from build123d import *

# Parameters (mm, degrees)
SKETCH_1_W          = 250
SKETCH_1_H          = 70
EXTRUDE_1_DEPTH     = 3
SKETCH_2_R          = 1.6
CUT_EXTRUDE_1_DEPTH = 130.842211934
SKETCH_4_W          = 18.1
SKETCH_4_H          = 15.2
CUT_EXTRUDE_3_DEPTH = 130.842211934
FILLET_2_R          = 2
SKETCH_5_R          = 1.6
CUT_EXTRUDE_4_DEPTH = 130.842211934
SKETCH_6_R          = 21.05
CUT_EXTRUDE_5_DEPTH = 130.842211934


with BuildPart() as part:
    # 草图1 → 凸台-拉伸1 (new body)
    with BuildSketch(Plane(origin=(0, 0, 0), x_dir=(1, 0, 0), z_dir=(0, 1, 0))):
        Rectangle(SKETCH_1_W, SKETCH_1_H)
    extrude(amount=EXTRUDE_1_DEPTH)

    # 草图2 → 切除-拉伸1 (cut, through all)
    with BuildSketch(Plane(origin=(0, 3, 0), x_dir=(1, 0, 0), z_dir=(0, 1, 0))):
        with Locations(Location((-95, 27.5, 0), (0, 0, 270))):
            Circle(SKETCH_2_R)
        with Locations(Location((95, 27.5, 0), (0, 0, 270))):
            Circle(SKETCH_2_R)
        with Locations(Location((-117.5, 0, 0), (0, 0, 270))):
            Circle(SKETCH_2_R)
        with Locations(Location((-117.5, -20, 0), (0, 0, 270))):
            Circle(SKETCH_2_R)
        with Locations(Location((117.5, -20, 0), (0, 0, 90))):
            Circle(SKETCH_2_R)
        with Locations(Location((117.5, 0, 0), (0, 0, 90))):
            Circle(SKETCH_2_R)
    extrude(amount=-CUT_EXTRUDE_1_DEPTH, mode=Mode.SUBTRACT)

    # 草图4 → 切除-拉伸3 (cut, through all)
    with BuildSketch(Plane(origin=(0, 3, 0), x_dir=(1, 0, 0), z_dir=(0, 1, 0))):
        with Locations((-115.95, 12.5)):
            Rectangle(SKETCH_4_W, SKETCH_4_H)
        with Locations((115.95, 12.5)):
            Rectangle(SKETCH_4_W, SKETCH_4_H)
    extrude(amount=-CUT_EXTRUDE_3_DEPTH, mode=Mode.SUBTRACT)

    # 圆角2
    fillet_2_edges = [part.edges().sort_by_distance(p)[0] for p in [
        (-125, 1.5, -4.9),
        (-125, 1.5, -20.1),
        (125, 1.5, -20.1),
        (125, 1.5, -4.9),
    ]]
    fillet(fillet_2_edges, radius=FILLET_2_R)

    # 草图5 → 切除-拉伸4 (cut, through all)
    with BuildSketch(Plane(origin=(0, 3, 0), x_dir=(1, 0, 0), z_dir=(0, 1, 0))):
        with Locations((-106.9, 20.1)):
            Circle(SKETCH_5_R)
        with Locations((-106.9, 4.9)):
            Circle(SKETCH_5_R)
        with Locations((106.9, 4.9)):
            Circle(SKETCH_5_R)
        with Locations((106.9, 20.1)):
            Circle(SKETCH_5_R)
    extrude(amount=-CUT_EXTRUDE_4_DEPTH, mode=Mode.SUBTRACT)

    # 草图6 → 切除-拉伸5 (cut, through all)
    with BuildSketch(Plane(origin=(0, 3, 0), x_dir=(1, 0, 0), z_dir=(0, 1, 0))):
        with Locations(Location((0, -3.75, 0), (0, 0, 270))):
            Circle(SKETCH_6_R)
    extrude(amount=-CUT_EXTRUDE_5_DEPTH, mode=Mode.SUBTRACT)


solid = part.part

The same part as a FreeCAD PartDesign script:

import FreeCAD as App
import Part
import Sketcher

V = App.Vector


def edges_at(feature, points):
    """Names of the edges that pass closest to the given points."""
    edges = feature.Shape.Edges
    near = lambda p: min(range(len(edges)), key=lambda i: edges[i].distToShape(Part.Vertex(*p))[0])
    return sorted({f"Edge{near(p) + 1}" for p in points})


def add_polygon(sketch, points):
    """Adds a closed chain of lines whose ends are joined by coincident constraints."""
    first, n = sketch.GeometryCount, len(points)
    for a, b in zip(points, points[1:] + points[:1]):
        sketch.addGeometry(Part.LineSegment(App.Vector(*a, 0), App.Vector(*b, 0)), False)
    for i in range(n):
        sketch.addConstraint(Sketcher.Constraint("Coincident", first + i, 2, first + (i + 1) % n, 1))

doc = App.newDocument("Part")
body = doc.addObject("PartDesign::Body", "Body")

# Sketch on XZ plane
sketch1 = body.newObject("Sketcher::SketchObject", "Sketch")
sketch1.AttachmentSupport = (doc.getObject("XZ_Plane"), [""])
sketch1.MapMode = "FlatFace"
add_polygon(sketch1, [(-125, -35), (-125, 35), (125, 35), (125, -35)])  # lines 0-3
sketch1.addConstraint([
    Sketcher.Constraint("Vertical", 0),
    Sketcher.Constraint("Horizontal", 1),
    Sketcher.Constraint("Vertical", 2),
    Sketcher.Constraint("Horizontal", 3),
    Sketcher.Constraint("Symmetric", 0, 2, 2, 2, -1, 1),
    Sketcher.Constraint("DistanceX", 1, 1, 1, 2, 250.0),
    Sketcher.Constraint("DistanceY", 0, 1, 0, 2, 70.0),
])
pad1 = body.newObject("PartDesign::Pad", "Pad")
pad1.Profile = sketch1
pad1.Length = 3
pad1.Reversed = True

# Sketch on XZ plane
sketch2 = body.newObject("Sketcher::SketchObject", "Sketch001")
sketch2.AttachmentSupport = (doc.getObject("XZ_Plane"), [""])
sketch2.MapMode = "FlatFace"
sketch2.AttachmentOffset = App.Placement(V(0, 0, -3), App.Rotation())
sketch2.addGeometry([
    Part.Circle(V(-95, -27.5, 0), V(0, 0, 1), 1.6),  # 0
    Part.Circle(V(95, -27.5, 0), V(0, 0, 1), 1.6),  # 1
    Part.Circle(V(-117.5, 0, 0), V(0, 0, 1), 1.6),  # 2
    Part.Circle(V(-117.5, 20, 0), V(0, 0, 1), 1.6),  # 3
    Part.Circle(V(117.5, 20, 0), V(0, 0, 1), 1.6),  # 4
    Part.Circle(V(117.5, 0, 0), V(0, 0, 1), 1.6),  # 5
], False)
sketch2.addConstraint([
    Sketcher.Constraint("Equal", 0, 1),
    Sketcher.Constraint("Equal", 1, 2),
    Sketcher.Constraint("Equal", 2, 3),
    Sketcher.Constraint("Equal", 3, 4),
    Sketcher.Constraint("Equal", 4, 5),
    Sketcher.Constraint("Symmetric", 2, 3, 5, 3, -1, 1),
    Sketcher.Constraint("Symmetric", 0, 3, 1, 3, -2),
    Sketcher.Constraint("Symmetric", 3, 3, 4, 3, -2),
    Sketcher.Constraint("PointOnObject", 2, 3, -1),
    Sketcher.Constraint("Vertical", 2, 3, 3, 3),
    Sketcher.Constraint("Diameter", 0, 3.2),
    Sketcher.Constraint("DistanceX", 0, 3, -1, 1, 95.0),
    Sketcher.Constraint("DistanceY", -1, 1, 3, 3, 20.0),
    Sketcher.Constraint("DistanceX", 3, 3, 4, 3, 235.0),
    Sketcher.Constraint("DistanceY", 0, 3, -1, 1, 27.5),
])
pocket1 = body.newObject("PartDesign::Pocket", "Pocket")
pocket1.Profile = sketch2
pocket1.Type = "ThroughAll"
pocket1.Reversed = True

# Sketch on XZ plane
sketch3 = body.newObject("Sketcher::SketchObject", "Sketch002")
sketch3.AttachmentSupport = (doc.getObject("XZ_Plane"), [""])
sketch3.MapMode = "FlatFace"
sketch3.AttachmentOffset = App.Placement(V(0, 0, -3), App.Rotation())
add_polygon(sketch3, [(-125, -20), (-125, -5), (-107, -5), (-107, -20)])  # lines 0-3
add_polygon(sketch3, [(107, -20), (107, -5), (125, -5), (125, -20)])  # lines 4-7
sketch3.addConstraint([
    Sketcher.Constraint("Vertical", 0),
    Sketcher.Constraint("Horizontal", 1),
    Sketcher.Constraint("Vertical", 2),
    Sketcher.Constraint("Horizontal", 3),
    Sketcher.Constraint("Vertical", 4),
    Sketcher.Constraint("Horizontal", 5),
    Sketcher.Constraint("Vertical", 6),
    Sketcher.Constraint("Horizontal", 7),
    Sketcher.Constraint("Symmetric", 1, 2, 4, 2, -2),
    Sketcher.Constraint("Symmetric", 3, 2, 6, 2, -2),
    Sketcher.Constraint("DistanceX", 1, 1, 1, 2, 18.1),
    Sketcher.Constraint("DistanceY", 0, 1, 0, 2, 15.2),
    Sketcher.Constraint("DistanceX", 0, 2, -1, 1, 125.0),
    Sketcher.Constraint("DistanceY", 0, 2, -1, 1, 4.9),
])
pocket2 = body.newObject("PartDesign::Pocket", "Pocket001")
pocket2.Profile = sketch3
pocket2.Type = "ThroughAll"
pocket2.Reversed = True
doc.recompute()

fillet = body.newObject("PartDesign::Fillet", "Fillet")
fillet.Base = (pocket2, edges_at(pocket2, [
    (-125, 1.5, -4.9),
    (-125, 1.5, -20.1),
    (125, 1.5, -20.1),
    (125, 1.5, -4.9),
]))
fillet.Radius = 2

# Sketch on XZ plane
sketch4 = body.newObject("Sketcher::SketchObject", "Sketch003")
sketch4.AttachmentSupport = (doc.getObject("XZ_Plane"), [""])
sketch4.MapMode = "FlatFace"
sketch4.AttachmentOffset = App.Placement(V(0, 0, -3), App.Rotation())
sketch4.addGeometry([
    Part.Circle(V(-106.9, -20.1, 0), V(0, 0, 1), 1.6),
    Part.Circle(V(-106.9, -4.9, 0), V(0, 0, 1), 1.6),
    Part.Circle(V(106.9, -4.9, 0), V(0, 0, 1), 1.6),
    Part.Circle(V(106.9, -20.1, 0), V(0, 0, 1), 1.6),
], False)
sketch4.addConstraint([
    Sketcher.Constraint("Equal", 0, 1),
    Sketcher.Constraint("Equal", 1, 2),
    Sketcher.Constraint("Equal", 2, 3),
    Sketcher.Constraint("Symmetric", 1, 3, 2, 3, -2),
    Sketcher.Constraint("Symmetric", 0, 3, 3, 3, -2),
    Sketcher.Constraint("Vertical", 0, 3, 1, 3),
    Sketcher.Constraint("Diameter", 0, 3.2),
    Sketcher.Constraint("DistanceX", 0, 3, -1, 1, 106.9),
    Sketcher.Constraint("DistanceY", 0, 3, -1, 1, 20.1),
    Sketcher.Constraint("DistanceY", 1, 3, -1, 1, 4.9),
])
pocket3 = body.newObject("PartDesign::Pocket", "Pocket002")
pocket3.Profile = sketch4
pocket3.Type = "ThroughAll"
pocket3.Reversed = True

# Sketch on XZ plane
sketch5 = body.newObject("Sketcher::SketchObject", "Sketch004")
sketch5.AttachmentSupport = (doc.getObject("XZ_Plane"), [""])
sketch5.MapMode = "FlatFace"
sketch5.AttachmentOffset = App.Placement(V(0, 0, -3), App.Rotation())
sketch5.addGeometry(Part.Circle(V(0, 4, 0), V(0, 0, 1), 21), False)
sketch5.addConstraint([
    Sketcher.Constraint("PointOnObject", 0, 3, -2),
    Sketcher.Constraint("Diameter", 0, 42.1),
    Sketcher.Constraint("DistanceY", -1, 1, 0, 3, 3.75),
])
pocket4 = body.newObject("PartDesign::Pocket", "Pocket003")
pocket4.Profile = sketch5
pocket4.Type = "ThroughAll"
pocket4.Reversed = True

doc.recompute()
